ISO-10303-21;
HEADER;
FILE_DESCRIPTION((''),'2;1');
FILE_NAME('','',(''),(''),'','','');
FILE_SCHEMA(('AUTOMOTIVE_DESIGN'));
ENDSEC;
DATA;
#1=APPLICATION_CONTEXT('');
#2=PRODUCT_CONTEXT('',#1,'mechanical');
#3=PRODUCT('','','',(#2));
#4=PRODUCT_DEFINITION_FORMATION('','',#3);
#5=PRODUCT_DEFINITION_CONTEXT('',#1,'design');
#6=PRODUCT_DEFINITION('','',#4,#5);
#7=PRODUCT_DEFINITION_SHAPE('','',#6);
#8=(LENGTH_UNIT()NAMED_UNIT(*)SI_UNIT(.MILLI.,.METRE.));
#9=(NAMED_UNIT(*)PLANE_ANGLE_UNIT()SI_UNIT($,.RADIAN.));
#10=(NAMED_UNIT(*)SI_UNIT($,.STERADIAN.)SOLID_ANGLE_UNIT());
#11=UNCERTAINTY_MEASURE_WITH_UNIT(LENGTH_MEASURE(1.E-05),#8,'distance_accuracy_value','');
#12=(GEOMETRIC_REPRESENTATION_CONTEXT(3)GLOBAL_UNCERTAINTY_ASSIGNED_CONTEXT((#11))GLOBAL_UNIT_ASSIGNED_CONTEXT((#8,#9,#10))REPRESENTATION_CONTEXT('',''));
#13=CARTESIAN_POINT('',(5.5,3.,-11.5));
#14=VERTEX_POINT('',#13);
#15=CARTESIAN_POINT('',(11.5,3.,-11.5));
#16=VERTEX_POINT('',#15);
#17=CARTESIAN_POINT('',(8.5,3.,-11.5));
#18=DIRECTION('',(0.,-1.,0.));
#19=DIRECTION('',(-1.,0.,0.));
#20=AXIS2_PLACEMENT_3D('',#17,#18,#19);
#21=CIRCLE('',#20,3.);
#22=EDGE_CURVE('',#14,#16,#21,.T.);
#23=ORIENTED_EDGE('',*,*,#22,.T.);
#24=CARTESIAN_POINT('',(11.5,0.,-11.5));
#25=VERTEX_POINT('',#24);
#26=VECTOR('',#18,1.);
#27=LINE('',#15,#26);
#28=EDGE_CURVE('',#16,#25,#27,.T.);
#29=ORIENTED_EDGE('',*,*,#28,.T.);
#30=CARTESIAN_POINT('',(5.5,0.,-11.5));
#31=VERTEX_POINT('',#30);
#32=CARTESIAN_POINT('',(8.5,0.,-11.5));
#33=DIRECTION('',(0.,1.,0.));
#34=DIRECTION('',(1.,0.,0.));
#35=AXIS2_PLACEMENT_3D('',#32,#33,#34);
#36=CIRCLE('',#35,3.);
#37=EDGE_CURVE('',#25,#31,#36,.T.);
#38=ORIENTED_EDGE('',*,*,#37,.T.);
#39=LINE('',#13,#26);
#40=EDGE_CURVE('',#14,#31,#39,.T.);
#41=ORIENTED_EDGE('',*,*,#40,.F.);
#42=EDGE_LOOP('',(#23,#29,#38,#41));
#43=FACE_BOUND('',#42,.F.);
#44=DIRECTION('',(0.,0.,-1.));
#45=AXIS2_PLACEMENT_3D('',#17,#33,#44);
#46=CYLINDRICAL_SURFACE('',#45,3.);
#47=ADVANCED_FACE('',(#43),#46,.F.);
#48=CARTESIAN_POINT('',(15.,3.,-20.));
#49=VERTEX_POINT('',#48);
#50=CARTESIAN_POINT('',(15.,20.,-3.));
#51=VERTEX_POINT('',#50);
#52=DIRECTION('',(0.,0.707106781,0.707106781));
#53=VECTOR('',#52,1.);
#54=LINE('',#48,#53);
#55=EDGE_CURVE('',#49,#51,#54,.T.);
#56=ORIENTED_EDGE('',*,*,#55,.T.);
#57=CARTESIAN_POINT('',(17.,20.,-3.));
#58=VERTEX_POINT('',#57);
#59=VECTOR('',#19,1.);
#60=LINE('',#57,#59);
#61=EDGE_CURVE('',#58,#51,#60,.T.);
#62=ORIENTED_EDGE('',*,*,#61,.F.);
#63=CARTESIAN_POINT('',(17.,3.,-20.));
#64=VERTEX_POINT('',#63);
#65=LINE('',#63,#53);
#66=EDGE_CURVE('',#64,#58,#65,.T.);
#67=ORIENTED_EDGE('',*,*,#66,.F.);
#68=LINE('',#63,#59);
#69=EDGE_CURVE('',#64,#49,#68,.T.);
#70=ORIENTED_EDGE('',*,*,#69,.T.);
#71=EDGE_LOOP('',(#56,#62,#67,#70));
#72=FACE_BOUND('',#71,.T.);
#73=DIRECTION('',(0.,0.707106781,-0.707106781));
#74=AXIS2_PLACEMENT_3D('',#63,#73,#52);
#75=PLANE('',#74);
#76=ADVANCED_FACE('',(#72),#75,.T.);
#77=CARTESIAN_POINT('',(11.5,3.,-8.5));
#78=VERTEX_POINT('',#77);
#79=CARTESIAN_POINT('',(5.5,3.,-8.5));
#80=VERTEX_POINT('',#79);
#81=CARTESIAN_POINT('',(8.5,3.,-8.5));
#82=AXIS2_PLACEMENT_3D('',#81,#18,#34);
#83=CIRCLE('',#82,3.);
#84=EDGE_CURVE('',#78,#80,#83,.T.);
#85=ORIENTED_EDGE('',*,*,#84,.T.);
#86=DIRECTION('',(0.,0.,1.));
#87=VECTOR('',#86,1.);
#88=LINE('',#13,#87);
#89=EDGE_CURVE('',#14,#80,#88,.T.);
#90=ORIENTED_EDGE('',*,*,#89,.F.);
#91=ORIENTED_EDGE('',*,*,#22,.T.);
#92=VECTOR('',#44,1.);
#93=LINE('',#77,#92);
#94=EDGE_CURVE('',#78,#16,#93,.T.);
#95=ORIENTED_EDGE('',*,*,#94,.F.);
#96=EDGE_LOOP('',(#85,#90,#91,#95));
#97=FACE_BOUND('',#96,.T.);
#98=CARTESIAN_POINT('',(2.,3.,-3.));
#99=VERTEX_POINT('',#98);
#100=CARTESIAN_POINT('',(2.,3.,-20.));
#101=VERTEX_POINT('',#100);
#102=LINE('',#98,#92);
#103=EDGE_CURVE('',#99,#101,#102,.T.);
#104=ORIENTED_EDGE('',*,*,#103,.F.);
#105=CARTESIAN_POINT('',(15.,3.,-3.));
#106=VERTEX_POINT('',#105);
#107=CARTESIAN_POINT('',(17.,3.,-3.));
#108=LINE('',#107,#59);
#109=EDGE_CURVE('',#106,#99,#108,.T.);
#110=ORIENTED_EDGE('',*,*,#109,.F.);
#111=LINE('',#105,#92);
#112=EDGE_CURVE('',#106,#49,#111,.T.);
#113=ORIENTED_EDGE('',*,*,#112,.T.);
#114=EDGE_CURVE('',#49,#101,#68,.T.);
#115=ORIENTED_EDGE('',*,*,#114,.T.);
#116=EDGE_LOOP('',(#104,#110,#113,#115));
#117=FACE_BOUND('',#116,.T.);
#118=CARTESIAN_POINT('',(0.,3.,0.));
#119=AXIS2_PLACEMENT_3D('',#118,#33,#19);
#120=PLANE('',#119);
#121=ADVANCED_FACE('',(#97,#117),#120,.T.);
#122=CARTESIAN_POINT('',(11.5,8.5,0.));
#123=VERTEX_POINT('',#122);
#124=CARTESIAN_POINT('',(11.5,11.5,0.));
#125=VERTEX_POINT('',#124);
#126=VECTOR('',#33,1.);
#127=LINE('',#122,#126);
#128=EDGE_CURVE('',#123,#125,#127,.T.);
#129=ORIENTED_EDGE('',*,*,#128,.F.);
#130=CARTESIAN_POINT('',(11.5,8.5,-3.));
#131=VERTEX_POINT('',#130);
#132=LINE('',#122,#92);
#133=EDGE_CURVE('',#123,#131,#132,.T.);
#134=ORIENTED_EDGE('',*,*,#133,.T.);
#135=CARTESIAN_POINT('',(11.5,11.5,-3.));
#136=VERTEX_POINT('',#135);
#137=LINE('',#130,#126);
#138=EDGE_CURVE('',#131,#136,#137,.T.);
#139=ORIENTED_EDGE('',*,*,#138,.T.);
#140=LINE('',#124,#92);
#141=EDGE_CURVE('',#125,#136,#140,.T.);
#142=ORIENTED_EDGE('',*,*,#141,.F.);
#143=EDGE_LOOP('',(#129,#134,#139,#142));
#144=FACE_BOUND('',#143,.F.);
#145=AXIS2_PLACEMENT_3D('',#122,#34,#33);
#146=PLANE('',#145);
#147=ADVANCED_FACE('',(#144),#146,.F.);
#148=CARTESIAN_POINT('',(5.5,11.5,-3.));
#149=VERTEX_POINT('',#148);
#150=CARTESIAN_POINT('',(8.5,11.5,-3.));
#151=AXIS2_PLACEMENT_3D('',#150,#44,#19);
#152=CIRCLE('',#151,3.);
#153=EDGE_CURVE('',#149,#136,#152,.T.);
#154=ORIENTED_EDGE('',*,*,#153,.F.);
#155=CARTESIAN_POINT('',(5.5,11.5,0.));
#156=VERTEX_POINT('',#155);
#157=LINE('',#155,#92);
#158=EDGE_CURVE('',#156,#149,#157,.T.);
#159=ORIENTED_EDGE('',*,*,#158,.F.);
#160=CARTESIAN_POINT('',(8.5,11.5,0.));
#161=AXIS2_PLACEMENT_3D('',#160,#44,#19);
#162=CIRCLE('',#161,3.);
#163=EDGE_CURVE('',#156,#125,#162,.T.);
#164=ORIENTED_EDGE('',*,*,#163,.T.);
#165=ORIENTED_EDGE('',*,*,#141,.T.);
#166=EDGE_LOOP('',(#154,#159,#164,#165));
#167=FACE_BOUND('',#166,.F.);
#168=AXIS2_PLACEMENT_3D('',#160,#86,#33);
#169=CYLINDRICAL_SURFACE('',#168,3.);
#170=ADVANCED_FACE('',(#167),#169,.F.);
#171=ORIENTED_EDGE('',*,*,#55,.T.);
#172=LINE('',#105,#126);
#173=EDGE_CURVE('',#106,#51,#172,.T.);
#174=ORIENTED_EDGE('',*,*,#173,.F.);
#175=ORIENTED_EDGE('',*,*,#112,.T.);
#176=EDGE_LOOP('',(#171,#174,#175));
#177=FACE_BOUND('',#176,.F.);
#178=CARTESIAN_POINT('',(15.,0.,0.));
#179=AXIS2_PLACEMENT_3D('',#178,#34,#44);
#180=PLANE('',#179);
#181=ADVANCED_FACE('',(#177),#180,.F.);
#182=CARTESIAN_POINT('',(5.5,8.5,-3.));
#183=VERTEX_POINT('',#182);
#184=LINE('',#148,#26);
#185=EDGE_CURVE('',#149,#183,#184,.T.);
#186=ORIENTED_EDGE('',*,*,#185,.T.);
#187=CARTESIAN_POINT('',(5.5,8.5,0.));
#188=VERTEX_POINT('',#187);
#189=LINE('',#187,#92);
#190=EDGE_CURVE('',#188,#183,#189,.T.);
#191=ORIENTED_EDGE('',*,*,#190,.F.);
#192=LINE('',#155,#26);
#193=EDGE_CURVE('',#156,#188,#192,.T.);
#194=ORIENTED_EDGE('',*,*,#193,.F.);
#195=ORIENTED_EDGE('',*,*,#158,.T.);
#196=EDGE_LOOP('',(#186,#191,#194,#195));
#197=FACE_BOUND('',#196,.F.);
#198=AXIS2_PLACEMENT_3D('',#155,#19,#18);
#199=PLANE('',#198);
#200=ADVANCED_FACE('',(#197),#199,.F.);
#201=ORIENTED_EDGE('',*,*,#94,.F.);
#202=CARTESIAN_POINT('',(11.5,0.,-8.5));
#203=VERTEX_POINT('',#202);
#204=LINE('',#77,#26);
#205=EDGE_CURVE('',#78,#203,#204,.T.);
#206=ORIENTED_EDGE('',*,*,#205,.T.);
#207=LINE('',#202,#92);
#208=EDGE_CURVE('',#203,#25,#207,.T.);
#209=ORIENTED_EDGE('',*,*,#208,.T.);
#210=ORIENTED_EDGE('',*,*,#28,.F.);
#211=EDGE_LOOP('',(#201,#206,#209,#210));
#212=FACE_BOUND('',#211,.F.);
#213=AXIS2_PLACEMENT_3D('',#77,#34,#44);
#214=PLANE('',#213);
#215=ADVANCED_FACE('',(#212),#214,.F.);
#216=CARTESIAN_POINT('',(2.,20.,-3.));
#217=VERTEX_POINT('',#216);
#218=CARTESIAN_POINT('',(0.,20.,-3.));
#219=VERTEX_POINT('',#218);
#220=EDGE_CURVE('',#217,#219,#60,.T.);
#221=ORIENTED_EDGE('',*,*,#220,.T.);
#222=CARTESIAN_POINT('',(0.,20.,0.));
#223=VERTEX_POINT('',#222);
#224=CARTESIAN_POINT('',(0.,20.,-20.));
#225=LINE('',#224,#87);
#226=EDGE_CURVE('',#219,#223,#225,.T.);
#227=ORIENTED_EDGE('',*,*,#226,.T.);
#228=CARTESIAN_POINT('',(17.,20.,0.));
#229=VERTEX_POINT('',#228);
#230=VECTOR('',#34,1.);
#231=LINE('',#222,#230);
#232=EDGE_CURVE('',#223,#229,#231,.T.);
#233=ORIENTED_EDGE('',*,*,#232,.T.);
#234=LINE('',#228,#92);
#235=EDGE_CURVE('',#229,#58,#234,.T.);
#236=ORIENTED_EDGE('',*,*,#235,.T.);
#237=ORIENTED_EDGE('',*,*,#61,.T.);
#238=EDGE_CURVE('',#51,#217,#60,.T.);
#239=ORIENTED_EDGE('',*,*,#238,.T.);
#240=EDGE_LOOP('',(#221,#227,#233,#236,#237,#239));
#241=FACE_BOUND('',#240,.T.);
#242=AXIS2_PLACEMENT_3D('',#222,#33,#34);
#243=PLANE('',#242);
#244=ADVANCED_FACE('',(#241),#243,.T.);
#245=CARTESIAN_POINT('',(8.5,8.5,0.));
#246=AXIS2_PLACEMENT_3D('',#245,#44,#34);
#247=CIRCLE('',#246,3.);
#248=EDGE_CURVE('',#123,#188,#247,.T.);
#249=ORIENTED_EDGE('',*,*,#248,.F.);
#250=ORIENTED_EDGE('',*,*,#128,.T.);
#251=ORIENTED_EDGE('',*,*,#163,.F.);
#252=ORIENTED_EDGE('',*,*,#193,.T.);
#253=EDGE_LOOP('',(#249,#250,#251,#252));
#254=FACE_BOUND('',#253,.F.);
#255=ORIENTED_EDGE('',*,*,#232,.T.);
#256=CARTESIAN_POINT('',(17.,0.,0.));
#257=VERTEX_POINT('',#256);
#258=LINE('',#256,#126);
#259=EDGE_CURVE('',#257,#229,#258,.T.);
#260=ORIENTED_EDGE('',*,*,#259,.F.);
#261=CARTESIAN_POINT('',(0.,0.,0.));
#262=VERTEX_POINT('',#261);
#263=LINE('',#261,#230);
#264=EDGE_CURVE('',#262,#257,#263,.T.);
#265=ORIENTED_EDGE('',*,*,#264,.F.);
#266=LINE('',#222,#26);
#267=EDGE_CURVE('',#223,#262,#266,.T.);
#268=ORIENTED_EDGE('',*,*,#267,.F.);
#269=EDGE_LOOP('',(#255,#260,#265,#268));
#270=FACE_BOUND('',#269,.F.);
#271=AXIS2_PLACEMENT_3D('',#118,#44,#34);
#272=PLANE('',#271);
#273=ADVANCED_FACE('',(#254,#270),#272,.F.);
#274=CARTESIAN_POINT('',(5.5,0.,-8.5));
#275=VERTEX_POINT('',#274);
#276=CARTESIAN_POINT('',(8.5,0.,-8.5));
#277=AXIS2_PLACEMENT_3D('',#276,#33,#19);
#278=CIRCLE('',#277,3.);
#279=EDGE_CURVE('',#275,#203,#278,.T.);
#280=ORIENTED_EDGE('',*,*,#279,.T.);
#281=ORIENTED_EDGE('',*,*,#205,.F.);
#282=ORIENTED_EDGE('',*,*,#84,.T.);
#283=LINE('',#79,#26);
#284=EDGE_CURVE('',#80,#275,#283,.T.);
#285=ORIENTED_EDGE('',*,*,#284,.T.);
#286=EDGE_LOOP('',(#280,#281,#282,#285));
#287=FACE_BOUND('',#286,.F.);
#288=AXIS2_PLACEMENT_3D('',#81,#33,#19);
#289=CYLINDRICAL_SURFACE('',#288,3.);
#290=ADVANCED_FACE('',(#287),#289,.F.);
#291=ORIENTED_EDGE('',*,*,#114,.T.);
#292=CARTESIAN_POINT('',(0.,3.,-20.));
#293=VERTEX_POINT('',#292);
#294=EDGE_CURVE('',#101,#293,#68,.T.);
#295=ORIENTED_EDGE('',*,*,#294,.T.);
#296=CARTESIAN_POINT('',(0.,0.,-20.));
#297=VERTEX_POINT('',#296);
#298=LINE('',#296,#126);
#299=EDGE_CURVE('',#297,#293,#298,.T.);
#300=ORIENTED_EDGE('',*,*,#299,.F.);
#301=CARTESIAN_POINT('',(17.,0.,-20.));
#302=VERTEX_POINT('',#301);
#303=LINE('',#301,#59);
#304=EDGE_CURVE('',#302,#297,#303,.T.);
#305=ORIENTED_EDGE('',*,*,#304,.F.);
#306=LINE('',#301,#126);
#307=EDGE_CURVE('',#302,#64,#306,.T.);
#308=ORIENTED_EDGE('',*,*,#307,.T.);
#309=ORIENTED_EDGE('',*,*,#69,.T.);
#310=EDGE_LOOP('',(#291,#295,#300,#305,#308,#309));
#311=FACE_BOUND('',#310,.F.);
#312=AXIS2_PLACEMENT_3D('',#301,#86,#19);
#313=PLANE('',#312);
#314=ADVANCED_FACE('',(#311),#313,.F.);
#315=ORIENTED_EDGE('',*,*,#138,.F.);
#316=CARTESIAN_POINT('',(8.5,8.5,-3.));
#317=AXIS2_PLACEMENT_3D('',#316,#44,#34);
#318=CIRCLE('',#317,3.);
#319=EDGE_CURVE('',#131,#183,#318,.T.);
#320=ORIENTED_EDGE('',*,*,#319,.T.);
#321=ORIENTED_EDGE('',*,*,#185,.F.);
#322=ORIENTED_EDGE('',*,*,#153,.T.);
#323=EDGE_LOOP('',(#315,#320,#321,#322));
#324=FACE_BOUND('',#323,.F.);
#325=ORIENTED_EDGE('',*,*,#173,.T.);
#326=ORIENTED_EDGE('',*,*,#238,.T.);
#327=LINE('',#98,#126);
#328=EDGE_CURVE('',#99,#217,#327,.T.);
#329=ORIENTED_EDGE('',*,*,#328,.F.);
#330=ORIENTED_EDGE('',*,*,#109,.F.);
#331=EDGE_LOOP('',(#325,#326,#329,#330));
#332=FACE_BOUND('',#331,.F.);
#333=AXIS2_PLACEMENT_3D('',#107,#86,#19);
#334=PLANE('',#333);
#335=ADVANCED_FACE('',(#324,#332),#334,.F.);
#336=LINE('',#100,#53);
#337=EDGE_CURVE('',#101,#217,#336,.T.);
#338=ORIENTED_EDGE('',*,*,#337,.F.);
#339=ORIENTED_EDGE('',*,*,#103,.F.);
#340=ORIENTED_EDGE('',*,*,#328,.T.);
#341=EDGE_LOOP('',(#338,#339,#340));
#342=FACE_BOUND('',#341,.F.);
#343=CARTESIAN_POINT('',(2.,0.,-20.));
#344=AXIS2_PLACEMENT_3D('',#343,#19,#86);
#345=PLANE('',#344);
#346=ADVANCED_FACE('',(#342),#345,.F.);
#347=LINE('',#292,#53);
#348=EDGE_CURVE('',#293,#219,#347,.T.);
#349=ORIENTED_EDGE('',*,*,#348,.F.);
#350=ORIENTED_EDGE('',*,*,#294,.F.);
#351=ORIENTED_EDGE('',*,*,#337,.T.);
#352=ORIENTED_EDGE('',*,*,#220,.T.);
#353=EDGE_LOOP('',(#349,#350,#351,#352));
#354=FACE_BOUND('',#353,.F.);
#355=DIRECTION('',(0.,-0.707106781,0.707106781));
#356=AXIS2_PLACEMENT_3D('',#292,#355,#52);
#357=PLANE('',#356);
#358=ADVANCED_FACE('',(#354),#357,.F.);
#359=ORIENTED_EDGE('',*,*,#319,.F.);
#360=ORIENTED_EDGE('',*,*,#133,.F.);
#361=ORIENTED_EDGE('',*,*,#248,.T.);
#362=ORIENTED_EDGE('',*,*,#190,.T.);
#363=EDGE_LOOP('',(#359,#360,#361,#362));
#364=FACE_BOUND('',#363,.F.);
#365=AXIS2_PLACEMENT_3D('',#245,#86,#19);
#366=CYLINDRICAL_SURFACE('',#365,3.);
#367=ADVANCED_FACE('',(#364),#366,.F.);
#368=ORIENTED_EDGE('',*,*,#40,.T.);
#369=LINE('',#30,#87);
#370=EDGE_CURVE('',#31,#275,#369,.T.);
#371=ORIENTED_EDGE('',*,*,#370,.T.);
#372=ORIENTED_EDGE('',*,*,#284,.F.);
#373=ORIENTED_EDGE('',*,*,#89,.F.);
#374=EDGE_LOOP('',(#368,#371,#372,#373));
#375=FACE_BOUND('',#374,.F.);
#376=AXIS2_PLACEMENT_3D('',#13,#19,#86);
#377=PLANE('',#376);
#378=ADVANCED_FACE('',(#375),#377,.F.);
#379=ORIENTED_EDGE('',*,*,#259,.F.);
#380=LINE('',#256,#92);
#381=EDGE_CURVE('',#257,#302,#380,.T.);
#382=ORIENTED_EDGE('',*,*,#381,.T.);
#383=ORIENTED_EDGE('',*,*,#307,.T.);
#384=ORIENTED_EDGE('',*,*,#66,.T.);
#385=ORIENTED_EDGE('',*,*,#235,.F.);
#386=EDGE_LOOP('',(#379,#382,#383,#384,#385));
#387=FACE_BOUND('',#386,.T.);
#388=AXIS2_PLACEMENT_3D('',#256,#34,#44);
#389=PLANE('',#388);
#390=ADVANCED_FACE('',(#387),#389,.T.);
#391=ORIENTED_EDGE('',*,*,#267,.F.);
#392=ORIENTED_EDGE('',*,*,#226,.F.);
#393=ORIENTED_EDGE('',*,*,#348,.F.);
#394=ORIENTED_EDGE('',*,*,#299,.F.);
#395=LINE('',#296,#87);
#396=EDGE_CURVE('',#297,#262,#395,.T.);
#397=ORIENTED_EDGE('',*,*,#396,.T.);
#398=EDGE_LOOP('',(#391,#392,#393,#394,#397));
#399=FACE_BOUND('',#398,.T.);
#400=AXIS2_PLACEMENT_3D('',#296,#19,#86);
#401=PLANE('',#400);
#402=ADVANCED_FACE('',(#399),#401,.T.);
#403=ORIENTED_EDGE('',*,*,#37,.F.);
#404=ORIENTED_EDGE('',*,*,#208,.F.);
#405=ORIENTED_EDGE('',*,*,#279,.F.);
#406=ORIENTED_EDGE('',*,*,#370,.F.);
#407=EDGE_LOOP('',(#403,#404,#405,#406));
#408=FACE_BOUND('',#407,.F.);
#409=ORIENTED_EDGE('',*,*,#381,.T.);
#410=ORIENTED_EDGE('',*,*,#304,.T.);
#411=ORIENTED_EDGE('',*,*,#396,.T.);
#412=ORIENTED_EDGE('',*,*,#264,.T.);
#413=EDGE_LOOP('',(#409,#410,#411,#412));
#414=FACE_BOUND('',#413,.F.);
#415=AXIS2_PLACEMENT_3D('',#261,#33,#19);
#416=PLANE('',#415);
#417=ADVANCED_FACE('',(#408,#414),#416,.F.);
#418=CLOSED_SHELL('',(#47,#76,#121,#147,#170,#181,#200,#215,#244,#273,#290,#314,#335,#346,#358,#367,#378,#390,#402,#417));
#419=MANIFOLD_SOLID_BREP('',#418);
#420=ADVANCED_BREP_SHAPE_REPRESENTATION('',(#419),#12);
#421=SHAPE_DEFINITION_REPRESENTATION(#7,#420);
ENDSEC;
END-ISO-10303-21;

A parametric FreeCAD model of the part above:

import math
import FreeCAD as App
import Part
import Sketcher

V = App.Vector

doc = App.newDocument("Part")
body = doc.addObject("PartDesign::Body", "Body")

sketch1 = doc.addObject("Sketcher::SketchObject", "Sketch")
body.addObject(sketch1)
sketch1.AttachmentSupport = (doc.XZ_Plane, [""])
sketch1.MapMode = "FlatFace"
sketch1.addGeometry([
    Part.LineSegment(V(0, -20, 0), V(0, 0, 0)),
    Part.LineSegment(V(0, 0, 0), V(17, 0, 0)),
    Part.LineSegment(V(17, 0, 0), V(17, -20, 0)),
    Part.LineSegment(V(17, -20, 0), V(0, -20, 0)),
], False)
sketch1.addConstraint([
    Sketcher.Constraint("Coincident", 0, 2, 1, 1),
    Sketcher.Constraint("Coincident", 1, 2, 2, 1),
    Sketcher.Constraint("Coincident", 2, 2, 3, 1),
    Sketcher.Constraint("Coincident", 3, 2, 0, 1),
    Sketcher.Constraint("Vertical", 0),
    Sketcher.Constraint("Horizontal", 1),
    Sketcher.Constraint("Vertical", 2),
    Sketcher.Constraint("Horizontal", 3),
    Sketcher.Constraint("Coincident", 0, 2, -1, 1),
    Sketcher.Constraint("DistanceX", 1, 1, 1, 2, 17.0),
    Sketcher.Constraint("DistanceY", 0, 1, 0, 2, 20.0),
])
pad1 = doc.addObject("PartDesign::Pad", "Pad")
body.addObject(pad1)
pad1.Profile = sketch1
pad1.Length = 3
pad1.Reversed = True

sketch2 = doc.addObject("Sketcher::SketchObject", "Sketch001")
body.addObject(sketch2)
sketch2.AttachmentSupport = (doc.XZ_Plane, [""])
sketch2.MapMode = "FlatFace"
sketch2.AttachmentOffset = App.Placement(V(0, 0, -3), App.Rotation())
sketch2.addGeometry([
    Part.ArcOfCircle(Part.Circle(V(8.5, -11.5, 0), V(0, 0, 1), 3), math.radians(180), math.radians(360)),
    Part.LineSegment(V(5.5, -11.5, 0), V(5.5, -8.5, 0)),
    Part.ArcOfCircle(Part.Circle(V(8.5, -8.5, 0), V(0, 0, 1), 3), math.radians(0), math.radians(180)),
    Part.LineSegment(V(11.5, -8.5, 0), V(11.5, -11.5, 0)),
], False)
sketch2.addConstraint([
    Sketcher.Constraint("Tangent", 0, 1, 1, 1),
    Sketcher.Constraint("Tangent", 1, 2, 2, 2),
    Sketcher.Constraint("Tangent", 2, 1, 3, 1),
    Sketcher.Constraint("Tangent", 3, 2, 0, 2),
    Sketcher.Constraint("Vertical", 1),
    Sketcher.Constraint("Vertical", 3),
    Sketcher.Constraint("Radius", 0, 3.0),
    Sketcher.Constraint("DistanceY", 1, 1, 1, 2, 3.0),
    Sketcher.Constraint("DistanceX", -1, 1, 0, 3, 8.5),
    Sketcher.Constraint("DistanceY", 0, 3, -1, 1, 11.5),
])
pocket1 = doc.addObject("PartDesign::Pocket", "Pocket")
body.addObject(pocket1)
pocket1.Profile = sketch2
pocket1.Length = 3
pocket1.Reversed = True

sketch3 = doc.addObject("Sketcher::SketchObject", "Sketch002")
body.addObject(sketch3)
sketch3.AttachmentSupport = (doc.XZ_Plane, [""])
sketch3.MapMode = "FlatFace"
sketch3.AttachmentOffset = App.Placement(V(0, 0, -3), App.Rotation())
sketch3.addGeometry([
    Part.LineSegment(V(0, 0, 0), V(17, 0, 0)),
    Part.LineSegment(V(17, 0, 0), V(17, -3, 0)),
    Part.LineSegment(V(17, -3, 0), V(0, -3, 0)),
    Part.LineSegment(V(0, -3, 0), V(0, 0, 0)),
], False)
sketch3.addConstraint([
    Sketcher.Constraint("Coincident", 0, 2, 1, 1),
    Sketcher.Constraint("Coincident", 1, 2, 2, 1),
    Sketcher.Constraint("Coincident", 2, 2, 3, 1),
    Sketcher.Constraint("Coincident", 3, 2, 0, 1),
    Sketcher.Constraint("Horizontal", 0),
    Sketcher.Constraint("Vertical", 1),
    Sketcher.Constraint("Horizontal", 2),
    Sketcher.Constraint("Vertical", 3),
    Sketcher.Constraint("Coincident", 3, 2, -1, 1),
    Sketcher.Constraint("DistanceY", 1, 2, 1, 1, 3.0),
    Sketcher.Constraint("DistanceX", 0, 1, 0, 2, 17.0),
])
pad2 = doc.addObject("PartDesign::Pad", "Pad001")
body.addObject(pad2)
pad2.Profile = sketch3
pad2.Length = 17
pad2.Reversed = True

sketch4 = doc.addObject("Sketcher::SketchObject", "Sketch003")
body.addObject(sketch4)
sketch4.AttachmentSupport = (doc.XY_Plane, [""])
sketch4.MapMode = "FlatFace"
sketch4.addGeometry([
    Part.ArcOfCircle(Part.Circle(V(8.5, 8.5, 0), V(0, 0, 1), 3), math.radians(180), math.radians(360)),
    Part.LineSegment(V(11.5, 8.5, 0), V(11.5, 11.5, 0)),
    Part.ArcOfCircle(Part.Circle(V(8.5, 11.5, 0), V(0, 0, 1), 3), math.radians(0), math.radians(180)),
    Part.LineSegment(V(5.5, 11.5, 0), V(5.5, 8.5, 0)),
], False)
sketch4.addConstraint([
    Sketcher.Constraint("Tangent", 0, 2, 1, 1),
    Sketcher.Constraint("Tangent", 1, 2, 2, 1),
    Sketcher.Constraint("Tangent", 2, 2, 3, 1),
    Sketcher.Constraint("Tangent", 3, 2, 0, 1),
    Sketcher.Constraint("Vertical", 1),
    Sketcher.Constraint("Vertical", 3),
    Sketcher.Constraint("Radius", 0, 3.0),
    Sketcher.Constraint("DistanceY", 1, 1, 1, 2, 3.0),
    Sketcher.Constraint("DistanceX", -1, 1, 0, 3, 8.5),
    Sketcher.Constraint("DistanceY", -1, 1, 0, 3, 8.5),
])
pocket2 = doc.addObject("PartDesign::Pocket", "Pocket001")
body.addObject(pocket2)
pocket2.Profile = sketch4
pocket2.Length = 3

sketch5 = doc.addObject("Sketcher::SketchObject", "Sketch004")
body.addObject(sketch5)
sketch5.AttachmentSupport = (doc.YZ_Plane, [""])
sketch5.MapMode = "FlatFace"
sketch5.AttachmentOffset = App.Placement(V(0, 0, 17), App.Rotation())
sketch5.addGeometry([
    Part.LineSegment(V(3, -3, 0), V(3, -20, 0)),
    Part.LineSegment(V(3, -20, 0), V(20, -3, 0)),
    Part.LineSegment(V(20, -3, 0), V(3, -3, 0)),
], False)
sketch5.addConstraint([
    Sketcher.Constraint("Coincident", 0, 2, 1, 1),
    Sketcher.Constraint("Coincident", 1, 2, 2, 1),
    Sketcher.Constraint("Coincident", 2, 2, 0, 1),
    Sketcher.Constraint("Vertical", 0),
    Sketcher.Constraint("Horizontal", 2),
    Sketcher.Constraint("Equal", 2, 0),
    Sketcher.Constraint("DistanceX", 2, 2, 2, 1, 17.0),
    Sketcher.Constraint("DistanceX", -1, 1, 0, 2, 3.0),
    Sketcher.Constraint("DistanceY", 0, 2, -1, 1, 20.0),
])
pad3 = doc.addObject("PartDesign::Pad", "Pad002")
body.addObject(pad3)
pad3.Profile = sketch5
pad3.Length = 2
pad3.Reversed = True

sketch6 = doc.addObject("Sketcher::SketchObject", "Sketch005")
body.addObject(sketch6)
sketch6.AttachmentSupport = (doc.YZ_Plane, [""])
sketch6.MapMode = "FlatFace"
sketch6.addGeometry([
    Part.LineSegment(V(3, -20, 0), V(3, -3, 0)),
    Part.LineSegment(V(3, -3, 0), V(20, -3, 0)),
    Part.LineSegment(V(20, -3, 0), V(3, -20, 0)),
], False)
sketch6.addConstraint([
    Sketcher.Constraint("Coincident", 0, 2, 1, 1),
    Sketcher.Constraint("Coincident", 1, 2, 2, 1),
    Sketcher.Constraint("Coincident", 2, 2, 0, 1),
    Sketcher.Constraint("Vertical", 0),
    Sketcher.Constraint("Horizontal", 1),
    Sketcher.Constraint("Equal", 1, 0),
    Sketcher.Constraint("DistanceX", 1, 1, 1, 2, 17.0),
    Sketcher.Constraint("DistanceX", -1, 1, 0, 2, 3.0),
    Sketcher.Constraint("DistanceY", 0, 2, -1, 1, 3.0),
])
pad4 = doc.addObject("PartDesign::Pad", "Pad003")
body.addObject(pad4)
pad4.Profile = sketch6
pad4.Length = 2

doc.recompute()
